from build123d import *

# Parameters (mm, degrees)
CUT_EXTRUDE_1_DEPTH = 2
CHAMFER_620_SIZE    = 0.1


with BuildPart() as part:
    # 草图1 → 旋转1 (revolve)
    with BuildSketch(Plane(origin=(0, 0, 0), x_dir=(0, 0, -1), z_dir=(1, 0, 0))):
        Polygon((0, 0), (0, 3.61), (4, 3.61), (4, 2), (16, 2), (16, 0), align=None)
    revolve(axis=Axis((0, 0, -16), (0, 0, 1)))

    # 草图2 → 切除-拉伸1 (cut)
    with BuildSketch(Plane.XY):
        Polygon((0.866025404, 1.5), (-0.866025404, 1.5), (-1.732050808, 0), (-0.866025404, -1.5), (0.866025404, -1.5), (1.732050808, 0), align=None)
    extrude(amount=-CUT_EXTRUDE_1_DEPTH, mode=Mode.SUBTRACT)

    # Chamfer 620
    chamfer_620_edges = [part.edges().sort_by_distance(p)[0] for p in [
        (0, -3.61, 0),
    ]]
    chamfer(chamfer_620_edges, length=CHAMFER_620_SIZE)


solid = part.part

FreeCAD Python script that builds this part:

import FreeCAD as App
import Part
import Sketcher
Q = App.Units.Quantity


def edges_at(feature, points):
    """Names of the edges that pass closest to the given points."""
    edges = feature.Shape.Edges
    near = lambda p: min(range(len(edges)), key=lambda i: edges[i].distToShape(Part.Vertex(*p))[0])
    return sorted({f"Edge{near(p) + 1}" for p in points})

doc = App.newDocument("Part")
params = doc.addObject("Spreadsheet::Sheet", "Params")
for row, (alias, value) in enumerate([
    ("sketch1_width", "2 mm"),
    ("sketch1_height", "16 mm"),
    ("sketch1_height2", "12 mm"),
    ("sketch1_width2", "3.61 mm"),
    ("revolution_angle", "360 deg"),
    ("pocket1_length", "2 mm"),
    ("chamfer_size", "0.1 mm"),
], start=1):
    params.set(f"A{row}", alias)
    params.set(f"B{row}", "=" + value)
    params.setAlias(f"B{row}", alias)

body = doc.addObject("PartDesign::Body", "Body")

# Sketch on YZ plane
sketch1 = body.newObject("Sketcher::SketchObject", "Sketch")
sketch1.AttachmentSupport = (doc.getObject("YZ_Plane"), [""])
sketch1.MapMode = "FlatFace"
sketch1.addGeometry([
    Part.LineSegment(App.Vector(3.61, 0, 0), App.Vector(0, 0, 0)),  # 0
    Part.LineSegment(App.Vector(0, 0, 0), App.Vector(0, -16, 0)),  # 1
    Part.LineSegment(App.Vector(0, -16, 0), App.Vector(2, -16, 0)),  # 2
    Part.LineSegment(App.Vector(2, -16, 0), App.Vector(2, -4, 0)),  # 3
    Part.LineSegment(App.Vector(2, -4, 0), App.Vector(3.61, -4, 0)),  # 4
    Part.LineSegment(App.Vector(3.61, -4, 0), App.Vector(3.61, 0, 0)),  # 5
], False)
sketch1.addConstraint([
    Sketcher.Constraint("Coincident", 0, 2, 1, 1),
    Sketcher.Constraint("Coincident", 1, 2, 2, 1),
    Sketcher.Constraint("Coincident", 2, 2, 3, 1),
    Sketcher.Constraint("Coincident", 3, 2, 4, 1),
    Sketcher.Constraint("Coincident", 4, 2, 5, 1),
    Sketcher.Constraint("Coincident", 5, 2, 0, 1),
    Sketcher.Constraint("Horizontal", 0),
    Sketcher.Constraint("Vertical", 1),
    Sketcher.Constraint("Horizontal", 2),
    Sketcher.Constraint("Vertical", 3),
    Sketcher.Constraint("Horizontal", 4),
    Sketcher.Constraint("Vertical", 5),
    Sketcher.Constraint("Coincident", 0, 2, -1, 1),
    Sketcher.Constraint("DistanceX", 2, 1, 2, 2, 2.0),
    Sketcher.Constraint("DistanceY", 1, 2, 1, 1, 16.0),
    Sketcher.Constraint("DistanceY", 3, 1, 3, 2, 12.0),
    Sketcher.Constraint("DistanceX", 0, 2, 0, 1, 3.61),
])
sketch1.setExpression("Constraints[13]", "Params.sketch1_width")
sketch1.setExpression("Constraints[14]", "Params.sketch1_height")
sketch1.setExpression("Constraints[15]", "Params.sketch1_height2")
sketch1.setExpression("Constraints[16]", "Params.sketch1_width2")
revolution = body.newObject("PartDesign::Revolution", "Revolution")
revolution.Profile = sketch1
revolution.ReferenceAxis = (sketch1, ["V_Axis"])
revolution.setExpression("Angle", "Params.revolution_angle")

# Sketch on XY plane
sketch2 = body.newObject("Sketcher::SketchObject", "Sketch001")
sketch2.AttachmentSupport = (doc.getObject("XY_Plane"), [""])
sketch2.MapMode = "FlatFace"
sketch2.addGeometry([
    Part.LineSegment(App.Vector(0.866025, 1.5, 0), App.Vector(-0.866025, 1.5, 0)),  # 0
    Part.LineSegment(App.Vector(-0.866025, 1.5, 0), App.Vector(-1.732051, 0, 0)),  # 1
    Part.LineSegment(App.Vector(-1.732051, 0, 0), App.Vector(-0.866025, -1.5, 0)),  # 2
    Part.LineSegment(App.Vector(-0.866025, -1.5, 0), App.Vector(0.866025, -1.5, 0)),  # 3
    Part.LineSegment(App.Vector(0.866025, -1.5, 0), App.Vector(1.732051, 0, 0)),  # 4
    Part.LineSegment(App.Vector(1.732051, 0, 0), App.Vector(0.866025, 1.5, 0)),  # 5
], False)
sketch2.addConstraint([
    Sketcher.Constraint("Coincident", 0, 2, 1, 1),
    Sketcher.Constraint("Coincident", 1, 2, 2, 1),
    Sketcher.Constraint("Coincident", 2, 2, 3, 1),
    Sketcher.Constraint("Coincident", 3, 2, 4, 1),
    Sketcher.Constraint("Coincident", 4, 2, 5, 1),
    Sketcher.Constraint("Coincident", 5, 2, 0, 1),
    Sketcher.Constraint("Horizontal", 0),
    Sketcher.Constraint("Horizontal", 3),
    Sketcher.Constraint("Symmetric", 0, 2, 3, 2, -1, 1),
    Sketcher.Constraint("Symmetric", 1, 2, 4, 2, -1, 1),
    Sketcher.Constraint("PointOnObject", 1, 2, -1),
    Sketcher.Constraint("Parallel", 2, 5),
    Sketcher.Constraint("Vertical", 0, 2, 2, 2),
    Sketcher.Constraint("Angle", 1, Q("-120 deg")),
    Sketcher.Constraint("DistanceY", 2, 2, 0, 2, 3.0),
    Sketcher.Constraint("DistanceX", 0, 2, 0, 1, 1.732051),
])
pocket1 = body.newObject("PartDesign::Pocket", "Pocket")
pocket1.Profile = sketch2
pocket1.setExpression("Length", "Params.pocket1_length")
doc.recompute()

chamfer = body.newObject("PartDesign::Chamfer", "Chamfer")
chamfer.Base = (pocket1, edges_at(pocket1, [(0, -3.61, 0)]))
chamfer.setExpression("Size", "Params.chamfer_size")

doc.recompute()
